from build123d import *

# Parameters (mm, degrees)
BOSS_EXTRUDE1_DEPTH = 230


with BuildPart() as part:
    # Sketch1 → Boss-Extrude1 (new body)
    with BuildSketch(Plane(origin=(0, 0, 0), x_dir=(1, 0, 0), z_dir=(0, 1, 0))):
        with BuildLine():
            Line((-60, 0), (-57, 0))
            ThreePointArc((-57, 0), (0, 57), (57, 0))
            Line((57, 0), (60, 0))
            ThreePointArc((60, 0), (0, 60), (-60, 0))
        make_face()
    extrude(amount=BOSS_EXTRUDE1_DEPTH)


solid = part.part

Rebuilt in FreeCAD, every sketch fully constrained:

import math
import FreeCAD as App
import Part
import Sketcher

V = App.Vector

doc = App.newDocument("Part")
body = doc.addObject("PartDesign::Body", "Body")

# Sketch on XZ plane
sketch1 = doc.addObject("Sketcher::SketchObject", "Sketch")
body.addObject(sketch1)
sketch1.AttachmentSupport = (doc.XZ_Plane, [""])
sketch1.MapMode = "FlatFace"
sketch1.addGeometry([
    Part.LineSegment(V(-60, 0, 0), V(-57, 0, 0)),
    Part.ArcOfCircle(Part.Circle(V(0, 0, 0), V(0, 0, 1), 57), math.radians(180), math.radians(360)),
    Part.LineSegment(V(57, 0, 0), V(60, 0, 0)),
    Part.ArcOfCircle(Part.Circle(V(0, 0, 0), V(0, 0, 1), 60), math.radians(180), math.radians(360)),
], False)
sketch1.addConstraint([
    Sketcher.Constraint("Coincident", 0, 2, 1, 1),
    Sketcher.Constraint("Coincident", 1, 2, 2, 1),
    Sketcher.Constraint("Coincident", 2, 2, 3, 2),
    Sketcher.Constraint("Coincident", 3, 1, 0, 1),
    Sketcher.Constraint("Horizontal", 0),
    Sketcher.Constraint("Horizontal", 2),
    Sketcher.Constraint("Coincident", 1, 3, -1, 1),
    Sketcher.Constraint("Coincident", 3, 3, -1, 1),
    Sketcher.Constraint("PointOnObject", 0, 2, -1),
    Sketcher.Constraint("PointOnObject", 1, 2, -1),
    Sketcher.Constraint("Radius", 1, 57.0),
    Sketcher.Constraint("Radius", 3, 60.0),
])
pad1 = doc.addObject("PartDesign::Pad", "Pad")
body.addObject(pad1)
pad1.Profile = sketch1
pad1.Length = 230
pad1.Reversed = True

doc.recompute()
